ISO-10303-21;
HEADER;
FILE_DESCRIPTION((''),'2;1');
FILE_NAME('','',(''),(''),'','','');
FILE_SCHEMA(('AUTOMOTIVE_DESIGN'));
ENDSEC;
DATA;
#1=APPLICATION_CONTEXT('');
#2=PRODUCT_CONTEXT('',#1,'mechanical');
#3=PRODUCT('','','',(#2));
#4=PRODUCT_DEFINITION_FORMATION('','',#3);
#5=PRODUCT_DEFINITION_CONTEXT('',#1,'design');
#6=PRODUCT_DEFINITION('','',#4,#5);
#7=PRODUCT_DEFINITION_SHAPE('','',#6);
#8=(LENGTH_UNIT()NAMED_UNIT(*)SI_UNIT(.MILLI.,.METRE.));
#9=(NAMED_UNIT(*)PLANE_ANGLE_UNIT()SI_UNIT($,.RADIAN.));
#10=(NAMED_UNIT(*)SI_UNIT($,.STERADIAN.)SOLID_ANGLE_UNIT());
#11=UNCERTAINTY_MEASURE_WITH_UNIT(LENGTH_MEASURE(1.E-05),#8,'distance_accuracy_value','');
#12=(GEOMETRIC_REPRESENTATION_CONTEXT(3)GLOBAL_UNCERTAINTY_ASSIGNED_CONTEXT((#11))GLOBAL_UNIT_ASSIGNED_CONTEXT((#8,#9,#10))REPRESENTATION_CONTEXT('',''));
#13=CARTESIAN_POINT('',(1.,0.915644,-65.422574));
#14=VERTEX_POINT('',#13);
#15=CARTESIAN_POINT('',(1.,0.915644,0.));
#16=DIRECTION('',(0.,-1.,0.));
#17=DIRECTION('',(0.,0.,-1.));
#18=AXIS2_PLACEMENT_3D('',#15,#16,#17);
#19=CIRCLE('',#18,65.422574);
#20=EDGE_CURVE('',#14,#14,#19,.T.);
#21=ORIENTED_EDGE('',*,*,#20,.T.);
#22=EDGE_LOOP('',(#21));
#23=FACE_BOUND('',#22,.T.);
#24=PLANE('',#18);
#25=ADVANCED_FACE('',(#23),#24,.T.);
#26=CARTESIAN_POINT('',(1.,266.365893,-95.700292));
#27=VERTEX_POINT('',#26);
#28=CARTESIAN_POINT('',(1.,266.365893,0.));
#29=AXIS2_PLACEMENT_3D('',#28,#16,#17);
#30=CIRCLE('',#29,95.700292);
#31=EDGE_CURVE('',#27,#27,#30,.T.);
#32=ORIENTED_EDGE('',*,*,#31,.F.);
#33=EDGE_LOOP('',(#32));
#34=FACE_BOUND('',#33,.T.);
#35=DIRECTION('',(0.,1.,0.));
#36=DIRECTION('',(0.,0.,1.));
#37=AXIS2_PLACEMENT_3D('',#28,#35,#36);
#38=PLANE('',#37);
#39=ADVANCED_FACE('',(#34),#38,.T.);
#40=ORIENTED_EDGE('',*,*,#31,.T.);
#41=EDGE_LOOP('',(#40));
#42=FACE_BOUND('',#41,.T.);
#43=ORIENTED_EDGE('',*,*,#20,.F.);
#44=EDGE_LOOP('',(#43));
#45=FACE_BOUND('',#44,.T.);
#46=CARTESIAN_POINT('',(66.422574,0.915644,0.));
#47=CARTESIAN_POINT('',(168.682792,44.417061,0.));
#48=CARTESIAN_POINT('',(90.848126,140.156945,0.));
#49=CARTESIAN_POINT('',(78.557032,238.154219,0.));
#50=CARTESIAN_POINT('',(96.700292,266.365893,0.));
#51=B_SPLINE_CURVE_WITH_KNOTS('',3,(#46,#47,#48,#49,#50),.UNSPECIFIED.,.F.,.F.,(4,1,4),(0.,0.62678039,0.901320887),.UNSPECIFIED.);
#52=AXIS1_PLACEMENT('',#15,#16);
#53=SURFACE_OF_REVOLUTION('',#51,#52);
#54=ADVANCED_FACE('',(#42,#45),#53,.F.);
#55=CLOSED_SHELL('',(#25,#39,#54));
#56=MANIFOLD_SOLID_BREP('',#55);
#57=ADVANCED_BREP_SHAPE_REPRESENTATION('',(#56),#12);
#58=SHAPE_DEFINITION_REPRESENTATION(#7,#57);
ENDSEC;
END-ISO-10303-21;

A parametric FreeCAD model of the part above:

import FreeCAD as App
import Part
import Sketcher

V = App.Vector

doc = App.newDocument("Part")
body = doc.addObject("PartDesign::Body", "Body")

sketch1 = doc.addObject("Sketcher::SketchObject", "Sketch")
body.addObject(sketch1)
sketch1.AttachmentSupport = (doc.XY_Plane, [""])
sketch1.MapMode = "FlatFace"
sketch1.addGeometry([
    Part.LineSegment(V(1, 0.915644, 0), V(66.422574, 0.915644, 0)),
    Part.BSplineCurve([V(66.422574, 0.915644, 0), V(168.682792, 44.417061, 0), V(90.848126, 140.156945, 0), V(78.557032, 238.154219, 0), V(96.700292, 266.365893, 0)], [4, 1, 4], [0, 0.62678039, 0.901320887], False, 3, [1, 1, 1, 1, 1], False),
    Part.LineSegment(V(96.700292, 266.365893, 0), V(1, 266.365893, 0)),
    Part.LineSegment(V(1, 266.365893, 0), V(1, 0.915644, 0)),
], False)
sketch1.addGeometry(Part.LineSegment(V(1, 0.915644, 0), V(1, 266.365893, 0)), True)
sketch1.addConstraint([
    Sketcher.Constraint("Block", 1),
    Sketcher.Constraint("Coincident", 0, 2, 1, 1),
    Sketcher.Constraint("Coincident", 1, 2, 2, 1),
    Sketcher.Constraint("Coincident", 2, 2, 3, 1),
    Sketcher.Constraint("Coincident", 3, 2, 0, 1),
    Sketcher.Constraint("Horizontal", 0),
    Sketcher.Constraint("Horizontal", 2),
    Sketcher.Constraint("Vertical", 3),
    Sketcher.Constraint("Vertical", 4),
    Sketcher.Constraint("Coincident", 4, 1, 3, 2),
    Sketcher.Constraint("Equal", 3, 4),
    Sketcher.Constraint("DistanceX", -1, 1, 2, 2, 1.0),
])
revolution = doc.addObject("PartDesign::Revolution", "Revolution")
body.addObject(revolution)
revolution.Profile = sketch1
revolution.ReferenceAxis = (sketch1, ["Axis0"])
revolution.Angle = 360

doc.recompute()
